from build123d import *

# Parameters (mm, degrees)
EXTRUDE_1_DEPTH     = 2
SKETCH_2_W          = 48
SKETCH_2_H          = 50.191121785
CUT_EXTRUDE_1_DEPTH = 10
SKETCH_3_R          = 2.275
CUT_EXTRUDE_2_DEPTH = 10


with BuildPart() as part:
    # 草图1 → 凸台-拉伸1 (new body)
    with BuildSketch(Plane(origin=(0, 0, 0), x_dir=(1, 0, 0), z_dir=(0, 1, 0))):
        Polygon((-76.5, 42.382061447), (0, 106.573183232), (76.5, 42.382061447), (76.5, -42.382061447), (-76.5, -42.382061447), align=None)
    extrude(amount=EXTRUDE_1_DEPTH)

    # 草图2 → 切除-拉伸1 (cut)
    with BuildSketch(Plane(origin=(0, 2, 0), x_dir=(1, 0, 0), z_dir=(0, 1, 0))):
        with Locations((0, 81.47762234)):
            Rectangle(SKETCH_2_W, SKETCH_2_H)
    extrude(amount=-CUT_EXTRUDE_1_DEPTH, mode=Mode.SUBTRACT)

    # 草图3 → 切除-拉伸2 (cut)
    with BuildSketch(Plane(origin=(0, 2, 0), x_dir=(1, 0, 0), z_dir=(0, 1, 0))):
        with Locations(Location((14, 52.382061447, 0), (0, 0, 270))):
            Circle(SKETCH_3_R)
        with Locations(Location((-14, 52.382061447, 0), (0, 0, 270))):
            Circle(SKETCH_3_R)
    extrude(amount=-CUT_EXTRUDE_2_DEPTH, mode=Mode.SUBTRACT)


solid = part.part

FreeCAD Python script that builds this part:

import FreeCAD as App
import Part
import Sketcher

V = App.Vector
Q = App.Units.Quantity


def add_polygon(sketch, points):
    """Adds a closed chain of lines whose ends are joined by coincident constraints."""
    first, n = sketch.GeometryCount, len(points)
    for a, b in zip(points, points[1:] + points[:1]):
        sketch.addGeometry(Part.LineSegment(App.Vector(*a, 0), App.Vector(*b, 0)), False)
    for i in range(n):
        sketch.addConstraint(Sketcher.Constraint("Coincident", first + i, 2, first + (i + 1) % n, 1))

doc = App.newDocument("Part")
body = doc.addObject("PartDesign::Body", "Body")

# Sketch on XZ plane
sketch1 = doc.addObject("Sketcher::SketchObject", "Sketch")
body.addObject(sketch1)
sketch1.AttachmentSupport = (doc.XZ_Plane, [""])
sketch1.MapMode = "FlatFace"
add_polygon(sketch1, [(0, -107), (-76, -42), (-76, 42), (76, 42), (76, -42)])  # lines 0-4
sketch1.addConstraint(Sketcher.Constraint("Vertical", 1))
sketch1.addConstraint(Sketcher.Constraint("Horizontal", 2))
sketch1.addConstraint(Sketcher.Constraint("Vertical", 3))
sketch1.addConstraint(Sketcher.Constraint("Symmetric", 0, 2, 2, 2, -1, 1))
sketch1.addConstraint(Sketcher.Constraint("PointOnObject", 4, 2, -2))
sketch1.addConstraint(Sketcher.Constraint("Horizontal", 0, 2, 3, 2))
sketch1.addConstraint(Sketcher.Constraint("DistanceX", 2, 1, 2, 2, 153.0))
sketch1.addConstraint(Sketcher.Constraint("Angle", 0, Q("140 deg")))
sketch1.addConstraint(Sketcher.Constraint("DistanceY", 1, 1, 1, 2, 84.764123))
pad1 = doc.addObject("PartDesign::Pad", "Pad")
body.addObject(pad1)
pad1.Profile = sketch1
pad1.Length = 2
pad1.Reversed = True

# Sketch on XZ plane
sketch2 = doc.addObject("Sketcher::SketchObject", "Sketch001")
body.addObject(sketch2)
sketch2.AttachmentSupport = (doc.XZ_Plane, [""])
sketch2.MapMode = "FlatFace"
sketch2.AttachmentOffset = App.Placement(V(0, 0, -2), App.Rotation())
add_polygon(sketch2, [(-24, -107), (-24, -56), (24, -56), (24, -107)])  # lines 0-3
sketch2.addConstraint(Sketcher.Constraint("Vertical", 0))
sketch2.addConstraint(Sketcher.Constraint("Horizontal", 1))
sketch2.addConstraint(Sketcher.Constraint("Vertical", 2))
sketch2.addConstraint(Sketcher.Constraint("Horizontal", 3))
sketch2.addConstraint(Sketcher.Constraint("DistanceX", 1, 1, 1, 2, 48.0))
sketch2.addConstraint(Sketcher.Constraint("DistanceX", 0, 2, -1, 1, 24.0))
sketch2.addConstraint(Sketcher.Constraint("DistanceY", 0, 1, 0, 2, 50.191122))
sketch2.addConstraint(Sketcher.Constraint("DistanceY", 0, 2, -1, 1, 56.382061))
pocket1 = doc.addObject("PartDesign::Pocket", "Pocket")
body.addObject(pocket1)
pocket1.Profile = sketch2
pocket1.Length = 10
pocket1.Reversed = True

# Sketch on XZ plane
sketch3 = doc.addObject("Sketcher::SketchObject", "Sketch002")
body.addObject(sketch3)
sketch3.AttachmentSupport = (doc.XZ_Plane, [""])
sketch3.MapMode = "FlatFace"
sketch3.AttachmentOffset = App.Placement(V(0, 0, -2), App.Rotation())
sketch3.addGeometry(Part.Circle(V(14, -52.4, 0), V(0, 0, 1), 2.3), False)
sketch3.addGeometry(Part.Circle(V(-14, -52.4, 0), V(0, 0, 1), 2.3), False)
sketch3.addConstraint(Sketcher.Constraint("Equal", 0, 1))
sketch3.addConstraint(Sketcher.Constraint("Symmetric", 0, 3, 1, 3, -2))
sketch3.addConstraint(Sketcher.Constraint("Diameter", 0, 4.55))
sketch3.addConstraint(Sketcher.Constraint("DistanceX", -1, 1, 0, 3, 14.0))
sketch3.addConstraint(Sketcher.Constraint("DistanceY", 0, 3, -1, 1, 52.382061))
pocket2 = doc.addObject("PartDesign::Pocket", "Pocket001")
body.addObject(pocket2)
pocket2.Profile = sketch3
pocket2.Length = 10
pocket2.Reversed = True

doc.recompute()
